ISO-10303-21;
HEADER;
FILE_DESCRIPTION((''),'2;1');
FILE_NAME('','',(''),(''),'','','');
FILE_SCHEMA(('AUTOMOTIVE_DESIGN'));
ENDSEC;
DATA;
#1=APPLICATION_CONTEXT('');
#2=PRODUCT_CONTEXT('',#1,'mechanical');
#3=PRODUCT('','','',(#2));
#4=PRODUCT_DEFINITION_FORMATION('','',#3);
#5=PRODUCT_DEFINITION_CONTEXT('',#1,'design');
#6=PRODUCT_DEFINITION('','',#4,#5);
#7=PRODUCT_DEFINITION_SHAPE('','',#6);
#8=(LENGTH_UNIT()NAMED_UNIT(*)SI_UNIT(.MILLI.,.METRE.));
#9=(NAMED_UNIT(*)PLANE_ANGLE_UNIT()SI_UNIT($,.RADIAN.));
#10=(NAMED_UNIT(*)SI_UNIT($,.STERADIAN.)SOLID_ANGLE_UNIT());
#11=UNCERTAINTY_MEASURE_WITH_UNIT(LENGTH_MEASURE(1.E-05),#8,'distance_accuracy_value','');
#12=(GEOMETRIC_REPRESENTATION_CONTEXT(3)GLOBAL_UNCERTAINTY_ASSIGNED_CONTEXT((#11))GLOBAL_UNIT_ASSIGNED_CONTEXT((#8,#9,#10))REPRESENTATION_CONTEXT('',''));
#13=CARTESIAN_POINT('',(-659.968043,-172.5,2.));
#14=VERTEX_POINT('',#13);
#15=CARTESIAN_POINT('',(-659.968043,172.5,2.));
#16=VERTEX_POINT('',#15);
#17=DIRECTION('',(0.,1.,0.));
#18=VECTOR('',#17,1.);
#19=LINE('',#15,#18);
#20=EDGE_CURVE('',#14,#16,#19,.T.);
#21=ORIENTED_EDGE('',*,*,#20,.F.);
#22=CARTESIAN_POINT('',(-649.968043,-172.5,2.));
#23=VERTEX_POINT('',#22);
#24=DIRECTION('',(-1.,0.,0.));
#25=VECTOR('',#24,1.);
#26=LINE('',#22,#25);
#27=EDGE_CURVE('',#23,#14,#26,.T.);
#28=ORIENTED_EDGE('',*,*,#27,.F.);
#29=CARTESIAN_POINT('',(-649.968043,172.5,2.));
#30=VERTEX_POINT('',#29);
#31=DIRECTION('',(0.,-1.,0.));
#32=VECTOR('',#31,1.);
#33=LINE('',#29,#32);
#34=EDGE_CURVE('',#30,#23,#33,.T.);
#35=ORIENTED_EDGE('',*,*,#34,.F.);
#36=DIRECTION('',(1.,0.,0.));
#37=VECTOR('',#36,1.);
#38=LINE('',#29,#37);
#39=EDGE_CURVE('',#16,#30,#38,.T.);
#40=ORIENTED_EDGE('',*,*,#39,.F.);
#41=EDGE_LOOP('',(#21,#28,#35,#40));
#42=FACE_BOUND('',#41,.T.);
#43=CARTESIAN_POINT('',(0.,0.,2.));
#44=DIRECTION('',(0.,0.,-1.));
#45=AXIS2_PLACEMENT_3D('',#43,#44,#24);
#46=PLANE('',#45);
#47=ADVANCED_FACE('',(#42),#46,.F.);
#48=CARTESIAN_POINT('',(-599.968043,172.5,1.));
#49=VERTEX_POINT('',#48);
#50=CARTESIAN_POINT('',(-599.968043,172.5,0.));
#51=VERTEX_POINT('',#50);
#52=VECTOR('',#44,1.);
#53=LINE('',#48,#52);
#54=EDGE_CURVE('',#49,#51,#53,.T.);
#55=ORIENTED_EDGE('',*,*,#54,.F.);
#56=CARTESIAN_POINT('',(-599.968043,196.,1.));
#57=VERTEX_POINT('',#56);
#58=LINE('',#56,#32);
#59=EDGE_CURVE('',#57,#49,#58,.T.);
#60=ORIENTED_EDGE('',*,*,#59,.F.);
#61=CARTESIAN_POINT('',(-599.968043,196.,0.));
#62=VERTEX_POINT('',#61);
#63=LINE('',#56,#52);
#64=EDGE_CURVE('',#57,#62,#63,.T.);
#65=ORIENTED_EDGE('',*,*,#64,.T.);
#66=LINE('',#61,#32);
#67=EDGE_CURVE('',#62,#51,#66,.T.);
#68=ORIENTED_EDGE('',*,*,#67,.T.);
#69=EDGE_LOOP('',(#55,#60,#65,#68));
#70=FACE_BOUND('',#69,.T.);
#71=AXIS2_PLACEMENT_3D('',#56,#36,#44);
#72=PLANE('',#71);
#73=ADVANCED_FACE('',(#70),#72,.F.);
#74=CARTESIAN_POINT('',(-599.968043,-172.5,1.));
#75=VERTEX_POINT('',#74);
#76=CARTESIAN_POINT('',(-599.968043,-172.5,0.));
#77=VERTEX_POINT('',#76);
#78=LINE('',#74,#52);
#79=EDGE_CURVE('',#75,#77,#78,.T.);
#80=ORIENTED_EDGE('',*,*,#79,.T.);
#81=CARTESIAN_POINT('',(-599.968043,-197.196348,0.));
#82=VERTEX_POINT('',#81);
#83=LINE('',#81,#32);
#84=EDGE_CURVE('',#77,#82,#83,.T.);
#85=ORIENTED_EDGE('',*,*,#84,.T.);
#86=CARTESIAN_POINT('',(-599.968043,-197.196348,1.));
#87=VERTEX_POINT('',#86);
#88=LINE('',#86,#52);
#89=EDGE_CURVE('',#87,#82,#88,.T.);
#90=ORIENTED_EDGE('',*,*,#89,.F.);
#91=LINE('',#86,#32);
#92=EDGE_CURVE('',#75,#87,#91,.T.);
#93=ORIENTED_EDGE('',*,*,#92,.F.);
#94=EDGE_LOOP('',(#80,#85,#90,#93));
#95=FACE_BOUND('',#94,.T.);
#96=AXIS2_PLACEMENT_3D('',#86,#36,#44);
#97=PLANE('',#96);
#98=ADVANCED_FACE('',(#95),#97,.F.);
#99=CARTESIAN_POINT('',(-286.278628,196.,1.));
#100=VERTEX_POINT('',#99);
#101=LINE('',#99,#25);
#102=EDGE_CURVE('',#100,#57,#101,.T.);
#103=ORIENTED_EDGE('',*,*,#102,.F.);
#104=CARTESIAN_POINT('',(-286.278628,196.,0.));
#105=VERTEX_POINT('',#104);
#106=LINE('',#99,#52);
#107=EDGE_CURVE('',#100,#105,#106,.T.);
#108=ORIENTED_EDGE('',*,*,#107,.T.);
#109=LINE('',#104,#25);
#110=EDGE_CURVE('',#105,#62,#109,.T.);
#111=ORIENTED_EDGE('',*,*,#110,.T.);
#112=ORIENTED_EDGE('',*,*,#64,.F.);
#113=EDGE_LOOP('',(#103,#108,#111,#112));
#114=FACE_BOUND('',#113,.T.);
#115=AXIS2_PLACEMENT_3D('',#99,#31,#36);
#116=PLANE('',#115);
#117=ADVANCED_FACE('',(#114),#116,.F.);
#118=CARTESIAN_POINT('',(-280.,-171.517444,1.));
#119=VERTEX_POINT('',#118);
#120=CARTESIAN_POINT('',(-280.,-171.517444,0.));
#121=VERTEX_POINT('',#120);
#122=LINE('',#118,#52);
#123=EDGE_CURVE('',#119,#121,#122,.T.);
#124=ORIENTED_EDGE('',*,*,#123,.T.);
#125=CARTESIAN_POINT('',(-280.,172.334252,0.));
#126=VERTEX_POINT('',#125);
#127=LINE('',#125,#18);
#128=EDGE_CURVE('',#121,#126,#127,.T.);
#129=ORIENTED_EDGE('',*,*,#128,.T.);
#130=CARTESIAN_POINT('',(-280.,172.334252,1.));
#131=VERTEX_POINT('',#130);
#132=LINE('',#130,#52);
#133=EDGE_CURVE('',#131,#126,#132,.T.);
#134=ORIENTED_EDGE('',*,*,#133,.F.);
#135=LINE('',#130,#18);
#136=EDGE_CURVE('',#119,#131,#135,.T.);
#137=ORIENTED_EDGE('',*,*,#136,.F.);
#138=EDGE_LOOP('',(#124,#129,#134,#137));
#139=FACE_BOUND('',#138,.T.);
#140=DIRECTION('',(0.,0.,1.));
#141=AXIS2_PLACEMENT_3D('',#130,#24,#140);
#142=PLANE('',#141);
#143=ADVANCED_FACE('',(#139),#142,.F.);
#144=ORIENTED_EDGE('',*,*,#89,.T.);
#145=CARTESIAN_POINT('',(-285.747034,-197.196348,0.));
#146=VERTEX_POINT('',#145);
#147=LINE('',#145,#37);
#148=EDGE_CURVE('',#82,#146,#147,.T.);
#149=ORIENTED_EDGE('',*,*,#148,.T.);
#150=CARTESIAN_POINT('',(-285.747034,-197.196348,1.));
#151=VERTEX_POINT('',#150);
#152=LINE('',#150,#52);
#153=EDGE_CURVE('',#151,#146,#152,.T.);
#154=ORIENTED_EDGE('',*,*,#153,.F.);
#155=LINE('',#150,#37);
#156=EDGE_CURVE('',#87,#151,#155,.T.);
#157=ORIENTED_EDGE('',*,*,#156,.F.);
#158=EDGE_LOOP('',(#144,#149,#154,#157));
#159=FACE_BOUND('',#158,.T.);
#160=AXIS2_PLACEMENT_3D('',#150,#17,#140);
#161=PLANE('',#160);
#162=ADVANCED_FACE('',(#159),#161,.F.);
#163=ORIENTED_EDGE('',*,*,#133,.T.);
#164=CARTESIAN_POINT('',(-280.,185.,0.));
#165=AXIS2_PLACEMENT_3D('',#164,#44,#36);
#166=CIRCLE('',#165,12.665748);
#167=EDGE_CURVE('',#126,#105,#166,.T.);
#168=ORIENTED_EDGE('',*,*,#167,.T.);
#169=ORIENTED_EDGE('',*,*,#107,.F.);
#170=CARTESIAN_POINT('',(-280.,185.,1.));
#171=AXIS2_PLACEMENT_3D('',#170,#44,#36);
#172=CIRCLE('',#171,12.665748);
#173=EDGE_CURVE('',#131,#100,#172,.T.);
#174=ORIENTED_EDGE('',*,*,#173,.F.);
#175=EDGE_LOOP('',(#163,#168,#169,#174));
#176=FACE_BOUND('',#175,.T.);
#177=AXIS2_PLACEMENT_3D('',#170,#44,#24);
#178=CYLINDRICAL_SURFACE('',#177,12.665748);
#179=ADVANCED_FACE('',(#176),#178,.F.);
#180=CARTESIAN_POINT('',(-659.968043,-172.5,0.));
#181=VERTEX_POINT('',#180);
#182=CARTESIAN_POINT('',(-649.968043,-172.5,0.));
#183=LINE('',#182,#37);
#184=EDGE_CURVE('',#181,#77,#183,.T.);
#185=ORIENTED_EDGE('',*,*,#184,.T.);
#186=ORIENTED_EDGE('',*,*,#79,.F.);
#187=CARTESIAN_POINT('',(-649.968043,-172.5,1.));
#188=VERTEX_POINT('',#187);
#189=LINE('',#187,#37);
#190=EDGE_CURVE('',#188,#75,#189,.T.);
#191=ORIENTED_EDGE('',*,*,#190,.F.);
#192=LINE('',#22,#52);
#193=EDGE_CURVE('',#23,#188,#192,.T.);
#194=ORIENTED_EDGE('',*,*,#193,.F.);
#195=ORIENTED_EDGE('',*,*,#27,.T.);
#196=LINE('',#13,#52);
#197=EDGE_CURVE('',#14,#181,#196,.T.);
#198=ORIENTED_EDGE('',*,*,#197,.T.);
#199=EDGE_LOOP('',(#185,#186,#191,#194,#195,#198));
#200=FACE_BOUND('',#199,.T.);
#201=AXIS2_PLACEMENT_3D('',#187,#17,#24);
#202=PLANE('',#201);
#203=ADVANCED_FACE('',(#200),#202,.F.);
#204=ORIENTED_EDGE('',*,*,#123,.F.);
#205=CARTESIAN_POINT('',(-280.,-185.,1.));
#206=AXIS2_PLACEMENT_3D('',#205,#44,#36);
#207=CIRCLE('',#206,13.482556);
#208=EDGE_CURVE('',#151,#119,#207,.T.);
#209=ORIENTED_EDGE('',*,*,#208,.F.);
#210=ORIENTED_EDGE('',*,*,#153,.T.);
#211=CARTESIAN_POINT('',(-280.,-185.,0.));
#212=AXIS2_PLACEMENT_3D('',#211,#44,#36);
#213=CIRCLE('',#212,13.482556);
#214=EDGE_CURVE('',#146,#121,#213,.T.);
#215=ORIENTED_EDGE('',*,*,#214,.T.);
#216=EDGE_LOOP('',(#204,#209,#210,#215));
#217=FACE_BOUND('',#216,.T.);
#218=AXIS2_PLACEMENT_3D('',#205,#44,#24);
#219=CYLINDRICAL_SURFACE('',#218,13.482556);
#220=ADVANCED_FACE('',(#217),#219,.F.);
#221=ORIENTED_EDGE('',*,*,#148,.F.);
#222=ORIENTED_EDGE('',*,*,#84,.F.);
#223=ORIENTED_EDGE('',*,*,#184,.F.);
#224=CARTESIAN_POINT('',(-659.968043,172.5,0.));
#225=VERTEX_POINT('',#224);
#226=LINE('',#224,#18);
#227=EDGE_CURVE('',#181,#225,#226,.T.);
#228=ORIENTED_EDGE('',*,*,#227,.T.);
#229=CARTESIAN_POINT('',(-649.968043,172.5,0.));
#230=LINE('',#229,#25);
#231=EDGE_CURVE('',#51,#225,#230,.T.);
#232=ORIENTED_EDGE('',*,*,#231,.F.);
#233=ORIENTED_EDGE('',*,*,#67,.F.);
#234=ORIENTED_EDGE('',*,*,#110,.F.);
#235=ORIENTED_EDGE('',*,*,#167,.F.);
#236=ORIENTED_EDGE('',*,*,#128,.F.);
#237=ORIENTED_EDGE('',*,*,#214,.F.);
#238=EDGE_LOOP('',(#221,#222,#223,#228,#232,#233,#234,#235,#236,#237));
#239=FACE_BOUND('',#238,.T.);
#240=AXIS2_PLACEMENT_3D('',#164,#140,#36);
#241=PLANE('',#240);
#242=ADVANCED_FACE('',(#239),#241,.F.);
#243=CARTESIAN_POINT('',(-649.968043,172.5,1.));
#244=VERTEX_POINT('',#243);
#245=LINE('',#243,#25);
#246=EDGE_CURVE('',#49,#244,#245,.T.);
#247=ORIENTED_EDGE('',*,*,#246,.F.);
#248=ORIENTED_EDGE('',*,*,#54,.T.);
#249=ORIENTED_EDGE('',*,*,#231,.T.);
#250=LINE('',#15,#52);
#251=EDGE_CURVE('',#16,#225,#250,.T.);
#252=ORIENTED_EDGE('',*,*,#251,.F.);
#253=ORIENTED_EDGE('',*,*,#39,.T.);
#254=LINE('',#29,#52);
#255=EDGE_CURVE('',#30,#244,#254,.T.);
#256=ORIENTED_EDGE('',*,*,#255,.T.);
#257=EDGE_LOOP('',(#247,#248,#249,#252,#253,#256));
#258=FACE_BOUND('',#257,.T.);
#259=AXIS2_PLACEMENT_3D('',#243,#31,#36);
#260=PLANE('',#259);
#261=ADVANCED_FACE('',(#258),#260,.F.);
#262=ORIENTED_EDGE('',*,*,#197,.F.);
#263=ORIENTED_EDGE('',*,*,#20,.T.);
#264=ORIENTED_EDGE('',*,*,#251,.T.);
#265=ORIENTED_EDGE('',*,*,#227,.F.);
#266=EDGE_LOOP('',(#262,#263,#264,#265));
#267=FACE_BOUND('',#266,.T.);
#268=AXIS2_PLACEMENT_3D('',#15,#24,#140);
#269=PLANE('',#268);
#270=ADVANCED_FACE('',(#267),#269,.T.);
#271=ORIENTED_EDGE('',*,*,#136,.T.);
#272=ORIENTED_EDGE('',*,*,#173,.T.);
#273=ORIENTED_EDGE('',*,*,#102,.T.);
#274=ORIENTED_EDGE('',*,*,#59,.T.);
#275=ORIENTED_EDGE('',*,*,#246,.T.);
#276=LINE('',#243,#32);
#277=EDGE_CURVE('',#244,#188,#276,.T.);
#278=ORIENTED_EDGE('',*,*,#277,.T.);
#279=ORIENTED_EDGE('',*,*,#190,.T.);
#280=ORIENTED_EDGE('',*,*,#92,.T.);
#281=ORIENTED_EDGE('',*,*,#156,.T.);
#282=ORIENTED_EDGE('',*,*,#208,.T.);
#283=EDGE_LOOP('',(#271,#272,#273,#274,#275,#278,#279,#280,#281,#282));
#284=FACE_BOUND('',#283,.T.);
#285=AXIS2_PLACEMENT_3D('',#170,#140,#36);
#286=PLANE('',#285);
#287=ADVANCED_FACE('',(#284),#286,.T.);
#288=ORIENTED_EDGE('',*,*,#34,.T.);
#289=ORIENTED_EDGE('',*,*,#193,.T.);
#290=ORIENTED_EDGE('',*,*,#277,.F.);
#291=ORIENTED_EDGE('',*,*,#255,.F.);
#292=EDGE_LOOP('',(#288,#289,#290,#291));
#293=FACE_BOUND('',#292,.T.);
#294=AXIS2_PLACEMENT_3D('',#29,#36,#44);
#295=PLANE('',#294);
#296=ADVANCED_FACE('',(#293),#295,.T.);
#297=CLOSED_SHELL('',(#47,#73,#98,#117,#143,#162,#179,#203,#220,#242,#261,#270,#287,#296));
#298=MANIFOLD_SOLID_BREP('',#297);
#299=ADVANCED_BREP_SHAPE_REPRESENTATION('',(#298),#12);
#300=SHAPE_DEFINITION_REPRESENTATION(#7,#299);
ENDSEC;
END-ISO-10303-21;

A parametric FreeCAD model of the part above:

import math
import FreeCAD as App
import Part
import Sketcher

doc = App.newDocument("Part")
body = doc.addObject("PartDesign::Body", "Body")

# Sketch on XY plane
sketch1 = body.newObject("Sketcher::SketchObject", "Sketch")
sketch1.AttachmentSupport = (doc.getObject("XY_Plane"), [""])
sketch1.MapMode = "FlatFace"
sketch1.addGeometry(Part.LineSegment(App.Vector(-286, 196, 0), App.Vector(-600, 196, 0)), False)
sketch1.addGeometry(Part.LineSegment(App.Vector(-600, 196, 0), App.Vector(-600, 172, 0)), False)
sketch1.addGeometry(Part.LineSegment(App.Vector(-600, 172, 0), App.Vector(-650, 172, 0)), False)
sketch1.addGeometry(Part.LineSegment(App.Vector(-650, 172, 0), App.Vector(-650, -172, 0)), False)
sketch1.addGeometry(Part.LineSegment(App.Vector(-650, -172, 0), App.Vector(-600, -172, 0)), False)
sketch1.addGeometry(Part.LineSegment(App.Vector(-600, -172, 0), App.Vector(-600, -197, 0)), False)
sketch1.addGeometry(Part.LineSegment(App.Vector(-600, -197, 0), App.Vector(-286, -197, 0)), False)
sketch1.addGeometry(Part.ArcOfCircle(Part.Circle(App.Vector(-280, -185, 0), App.Vector(0, 0, 1), 13), math.radians(90), math.radians(245)), False)
sketch1.addGeometry(Part.LineSegment(App.Vector(-280, -172, 0), App.Vector(-280, 172, 0)), False)
sketch1.addGeometry(Part.ArcOfCircle(Part.Circle(App.Vector(-280, 185, 0), App.Vector(0, 0, 1), 13), math.radians(120), math.radians(270)), False)
sketch1.addConstraint(Sketcher.Constraint("Coincident", 0, 2, 1, 1))
sketch1.addConstraint(Sketcher.Constraint("Coincident", 1, 2, 2, 1))
sketch1.addConstraint(Sketcher.Constraint("Coincident", 2, 2, 3, 1))
sketch1.addConstraint(Sketcher.Constraint("Coincident", 3, 2, 4, 1))
sketch1.addConstraint(Sketcher.Constraint("Coincident", 4, 2, 5, 1))
sketch1.addConstraint(Sketcher.Constraint("Coincident", 5, 2, 6, 1))
sketch1.addConstraint(Sketcher.Constraint("Coincident", 6, 2, 7, 2))
sketch1.addConstraint(Sketcher.Constraint("Coincident", 7, 1, 8, 1))
sketch1.addConstraint(Sketcher.Constraint("Coincident", 8, 2, 9, 2))
sketch1.addConstraint(Sketcher.Constraint("Coincident", 9, 1, 0, 1))
sketch1.addConstraint(Sketcher.Constraint("Horizontal", 0))
sketch1.addConstraint(Sketcher.Constraint("Vertical", 1))
sketch1.addConstraint(Sketcher.Constraint("Horizontal", 2))
sketch1.addConstraint(Sketcher.Constraint("Vertical", 3))
sketch1.addConstraint(Sketcher.Constraint("Horizontal", 4))
sketch1.addConstraint(Sketcher.Constraint("Vertical", 5))
sketch1.addConstraint(Sketcher.Constraint("Horizontal", 6))
sketch1.addConstraint(Sketcher.Constraint("Vertical", 8))
sketch1.addConstraint(Sketcher.Constraint("Symmetric", 7, 3, 9, 3, -1))
sketch1.addConstraint(Sketcher.Constraint("Symmetric", 1, 2, 4, 2, -1))
sketch1.addConstraint(Sketcher.Constraint("Vertical", 9, 3, 7, 1))
sketch1.addConstraint(Sketcher.Constraint("DistanceX", 2, 2, 2, 1, 50.0))
sketch1.addConstraint(Sketcher.Constraint("DistanceY", 3, 2, 3, 1, 345.0))
sketch1.addConstraint(Sketcher.Constraint("DistanceY", 1, 2, 1, 1, 23.5))
sketch1.addConstraint(Sketcher.Constraint("DistanceX", 7, 3, -1, 1, 280.0))
sketch1.addConstraint(Sketcher.Constraint("DistanceY", 7, 3, -1, 1, 185.0))
sketch1.addConstraint(Sketcher.Constraint("Radius", 7, 13.482556))
sketch1.addConstraint(Sketcher.Constraint("Radius", 9, 12.665748))
sketch1.addConstraint(Sketcher.Constraint("DistanceX", 6, 1, 6, 2, 314.221009))
sketch1.addConstraint(Sketcher.Constraint("DistanceX", 0, 2, 0, 1, 313.689415))
pad1 = body.newObject("PartDesign::Pad", "Pad")
pad1.Profile = sketch1
pad1.Length = 1

# Sketch on XY plane
sketch2 = body.newObject("Sketcher::SketchObject", "Sketch001")
sketch2.AttachmentSupport = (doc.getObject("XY_Plane"), [""])
sketch2.MapMode = "FlatFace"
sketch2.addGeometry(Part.LineSegment(App.Vector(-650, 172, 0), App.Vector(-650, -172, 0)), False)
sketch2.addGeometry(Part.LineSegment(App.Vector(-650, -172, 0), App.Vector(-660, -172, 0)), False)
sketch2.addGeometry(Part.LineSegment(App.Vector(-660, -172, 0), App.Vector(-660, 172, 0)), False)
sketch2.addGeometry(Part.LineSegment(App.Vector(-660, 172, 0), App.Vector(-650, 172, 0)), False)
sketch2.addConstraint(Sketcher.Constraint("Coincident", 0, 2, 1, 1))
sketch2.addConstraint(Sketcher.Constraint("Coincident", 1, 2, 2, 1))
sketch2.addConstraint(Sketcher.Constraint("Coincident", 2, 2, 3, 1))
sketch2.addConstraint(Sketcher.Constraint("Coincident", 3, 2, 0, 1))
sketch2.addConstraint(Sketcher.Constraint("Vertical", 0))
sketch2.addConstraint(Sketcher.Constraint("Horizontal", 1))
sketch2.addConstraint(Sketcher.Constraint("Vertical", 2))
sketch2.addConstraint(Sketcher.Constraint("Horizontal", 3))
sketch2.addConstraint(Sketcher.Constraint("DistanceX", 1, 2, 1, 1, 10.0))
sketch2.addConstraint(Sketcher.Constraint("DistanceY", 0, 2, 0, 1, 345.0))
sketch2.addConstraint(Sketcher.Constraint("DistanceY", 0, 2, -1, 1, 172.5))
sketch2.addConstraint(Sketcher.Constraint("DistanceX", 0, 2, -1, 1, 649.968043))
pad2 = body.newObject("PartDesign::Pad", "Pad001")
pad2.Profile = sketch2
pad2.Length = 2

doc.recompute()
